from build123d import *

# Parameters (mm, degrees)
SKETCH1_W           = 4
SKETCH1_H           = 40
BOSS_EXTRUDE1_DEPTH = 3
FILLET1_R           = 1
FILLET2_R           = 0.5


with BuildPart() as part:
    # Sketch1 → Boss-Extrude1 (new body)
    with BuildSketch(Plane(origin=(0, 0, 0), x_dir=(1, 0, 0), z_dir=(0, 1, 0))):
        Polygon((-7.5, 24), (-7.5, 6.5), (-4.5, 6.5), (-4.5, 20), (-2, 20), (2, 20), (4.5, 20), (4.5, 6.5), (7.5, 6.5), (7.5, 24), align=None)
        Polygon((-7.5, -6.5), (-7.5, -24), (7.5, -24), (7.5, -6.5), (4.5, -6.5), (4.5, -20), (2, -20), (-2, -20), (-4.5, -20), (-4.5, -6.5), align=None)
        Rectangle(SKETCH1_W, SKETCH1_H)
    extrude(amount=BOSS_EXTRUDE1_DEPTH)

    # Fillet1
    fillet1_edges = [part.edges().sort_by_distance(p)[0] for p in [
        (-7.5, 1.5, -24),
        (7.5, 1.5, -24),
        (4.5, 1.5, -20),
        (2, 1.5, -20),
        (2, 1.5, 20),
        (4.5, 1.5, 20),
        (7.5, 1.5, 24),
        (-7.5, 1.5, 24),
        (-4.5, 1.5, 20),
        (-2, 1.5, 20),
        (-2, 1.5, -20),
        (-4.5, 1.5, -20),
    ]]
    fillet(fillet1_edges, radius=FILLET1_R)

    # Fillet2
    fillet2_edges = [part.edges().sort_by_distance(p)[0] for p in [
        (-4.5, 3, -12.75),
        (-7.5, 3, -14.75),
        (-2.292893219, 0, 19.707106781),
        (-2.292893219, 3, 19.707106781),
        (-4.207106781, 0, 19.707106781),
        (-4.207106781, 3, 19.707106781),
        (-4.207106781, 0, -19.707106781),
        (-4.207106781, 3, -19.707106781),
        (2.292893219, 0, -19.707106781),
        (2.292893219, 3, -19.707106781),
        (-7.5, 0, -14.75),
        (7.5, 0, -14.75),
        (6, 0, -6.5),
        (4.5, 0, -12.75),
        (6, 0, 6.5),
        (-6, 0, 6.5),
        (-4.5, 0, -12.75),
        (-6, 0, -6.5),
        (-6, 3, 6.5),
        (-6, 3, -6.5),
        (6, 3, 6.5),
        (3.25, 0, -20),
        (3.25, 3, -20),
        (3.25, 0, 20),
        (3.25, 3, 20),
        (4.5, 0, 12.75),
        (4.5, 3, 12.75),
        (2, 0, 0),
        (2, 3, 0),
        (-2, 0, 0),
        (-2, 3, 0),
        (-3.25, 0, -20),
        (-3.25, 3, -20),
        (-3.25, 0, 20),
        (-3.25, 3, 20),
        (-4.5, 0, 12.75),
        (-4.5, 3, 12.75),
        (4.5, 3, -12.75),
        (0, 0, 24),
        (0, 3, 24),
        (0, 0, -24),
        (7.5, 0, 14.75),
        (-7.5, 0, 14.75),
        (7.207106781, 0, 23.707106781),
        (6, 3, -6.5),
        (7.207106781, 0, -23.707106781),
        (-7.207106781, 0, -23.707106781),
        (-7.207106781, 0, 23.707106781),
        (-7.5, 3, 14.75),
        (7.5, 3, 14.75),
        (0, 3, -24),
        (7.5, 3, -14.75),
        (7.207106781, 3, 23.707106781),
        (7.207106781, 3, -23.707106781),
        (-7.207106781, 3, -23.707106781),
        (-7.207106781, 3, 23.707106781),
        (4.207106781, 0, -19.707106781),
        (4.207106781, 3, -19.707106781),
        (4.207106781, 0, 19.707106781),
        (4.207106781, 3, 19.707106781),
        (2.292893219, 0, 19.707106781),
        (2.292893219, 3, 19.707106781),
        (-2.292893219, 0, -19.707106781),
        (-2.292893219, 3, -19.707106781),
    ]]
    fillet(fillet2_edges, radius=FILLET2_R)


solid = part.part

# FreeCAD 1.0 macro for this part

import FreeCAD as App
import Part
import Sketcher

V = App.Vector


def edges_at(feature, points):
    """Names of the edges that pass closest to the given points."""
    edges = feature.Shape.Edges
    near = lambda p: min(range(len(edges)), key=lambda i: edges[i].distToShape(Part.Vertex(*p))[0])
    return sorted({f"Edge{near(p) + 1}" for p in points})


def add_polygon(sketch, points):
    """Adds a closed chain of lines whose ends are joined by coincident constraints."""
    first, n = sketch.GeometryCount, len(points)
    for a, b in zip(points, points[1:] + points[:1]):
        sketch.addGeometry(Part.LineSegment(App.Vector(*a, 0), App.Vector(*b, 0)), False)
    for i in range(n):
        sketch.addConstraint(Sketcher.Constraint("Coincident", first + i, 2, first + (i + 1) % n, 1))

doc = App.newDocument("Part")
body = doc.addObject("PartDesign::Body", "Body")

# Sketch on XZ plane
sketch1 = body.newObject("Sketcher::SketchObject", "Sketch")
sketch1.AttachmentSupport = (doc.getObject("XZ_Plane"), [""])
sketch1.MapMode = "FlatFace"
add_polygon(sketch1, [(-7.5, -24), (-7.5, -6.5), (-4.5, -6.5), (-4.5, -20), (-2, -20), (-2, 20), (-4.5, 20), (-4.5, 6.5), (-7.5, 6.5), (-7.5, 24), (7.5, 24), (7.5, 6.5), (4.5, 6.5), (4.5, 20), (2, 20), (2, -20), (4.5, -20), (4.5, -6.5), (7.5, -6.5), (7.5, -24)])  # lines 0-19
sketch1.addConstraint(Sketcher.Constraint("Vertical", 0))
sketch1.addConstraint(Sketcher.Constraint("Horizontal", 1))
sketch1.addConstraint(Sketcher.Constraint("Vertical", 2))
sketch1.addConstraint(Sketcher.Constraint("Horizontal", 3))
sketch1.addConstraint(Sketcher.Constraint("Vertical", 4))
sketch1.addConstraint(Sketcher.Constraint("Horizontal", 5))
sketch1.addConstraint(Sketcher.Constraint("Vertical", 6))
sketch1.addConstraint(Sketcher.Constraint("Horizontal", 7))
sketch1.addConstraint(Sketcher.Constraint("Vertical", 8))
sketch1.addConstraint(Sketcher.Constraint("Horizontal", 9))
sketch1.addConstraint(Sketcher.Constraint("Vertical", 10))
sketch1.addConstraint(Sketcher.Constraint("Horizontal", 11))
sketch1.addConstraint(Sketcher.Constraint("Vertical", 12))
sketch1.addConstraint(Sketcher.Constraint("Horizontal", 13))
sketch1.addConstraint(Sketcher.Constraint("Vertical", 14))
sketch1.addConstraint(Sketcher.Constraint("Horizontal", 15))
sketch1.addConstraint(Sketcher.Constraint("Vertical", 16))
sketch1.addConstraint(Sketcher.Constraint("Horizontal", 17))
sketch1.addConstraint(Sketcher.Constraint("Vertical", 18))
sketch1.addConstraint(Sketcher.Constraint("Horizontal", 19))
sketch1.addConstraint(Sketcher.Constraint("Symmetric", 0, 2, 10, 2, -1, 1))
sketch1.addConstraint(Sketcher.Constraint("Symmetric", 2, 2, 12, 2, -1, 1))
sketch1.addConstraint(Sketcher.Constraint("Symmetric", 4, 2, 14, 2, -1, 1))
sketch1.addConstraint(Sketcher.Constraint("Symmetric", 6, 2, 16, 2, -1, 1))
sketch1.addConstraint(Sketcher.Constraint("Symmetric", 8, 2, 18, 2, -1, 1))
sketch1.addConstraint(Sketcher.Constraint("Symmetric", 7, 2, 10, 2, -2))
sketch1.addConstraint(Sketcher.Constraint("Symmetric", 5, 2, 12, 2, -2))
sketch1.addConstraint(Sketcher.Constraint("DistanceX", 1, 1, 1, 2, 3.0))
sketch1.addConstraint(Sketcher.Constraint("DistanceX", 9, 1, 9, 2, 15.0))
sketch1.addConstraint(Sketcher.Constraint("DistanceY", 4, 1, 4, 2, 40.0))
sketch1.addConstraint(Sketcher.Constraint("DistanceX", 3, 1, 3, 2, 2.5))
sketch1.addConstraint(Sketcher.Constraint("DistanceY", 0, 1, 0, 2, 17.5))
sketch1.addConstraint(Sketcher.Constraint("DistanceY", 2, 2, 2, 1, 13.5))
pad1 = body.newObject("PartDesign::Pad", "Pad")
pad1.Profile = sketch1
pad1.Length = 3
pad1.Reversed = True
doc.recompute()

fillet = body.newObject("PartDesign::Fillet", "Fillet")
fillet.Base = (pad1, edges_at(pad1, [
    (-7.5, 1.5, -24),
    (7.5, 1.5, -24),
    (4.5, 1.5, -20),
    (2, 1.5, -20),
    (2, 1.5, 20),
    (4.5, 1.5, 20),
    (7.5, 1.5, 24),
    (-7.5, 1.5, 24),
    (-4.5, 1.5, 20),
    (-2, 1.5, 20),
    (-2, 1.5, -20),
    (-4.5, 1.5, -20),
]))
fillet.Radius = 1
doc.recompute()

fillet2 = body.newObject("PartDesign::Fillet", "Fillet001")
fillet2.Base = (fillet, edges_at(fillet, [
    (-4.5, 3, -12.75),
    (-7.5, 3, -14.75),
    (-2.293, 0, 19.707),
    (-2.293, 3, 19.707),
    (-4.207, 0, 19.707),
    (-4.207, 3, 19.707),
    (-4.207, 0, -19.707),
    (-4.207, 3, -19.707),
    (2.293, 0, -19.707),
    (2.293, 3, -19.707),
    (-7.5, 0, -14.75),
    (7.5, 0, -14.75),
    (6, 0, -6.5),
    (4.5, 0, -12.75),
    (6, 0, 6.5),
    (-6, 0, 6.5),
    (-4.5, 0, -12.75),
    (-6, 0, -6.5),
    (-6, 3, 6.5),
    (-6, 3, -6.5),
    (6, 3, 6.5),
    (3.25, 0, -20),
    (3.25, 3, -20),
    (3.25, 0, 20),
    (3.25, 3, 20),
    (4.5, 0, 12.75),
    (4.5, 3, 12.75),
    (2, 0, 0),
    (2, 3, 0),
    (-2, 0, 0),
    (-2, 3, 0),
    (-3.25, 0, -20),
    (-3.25, 3, -20),
    (-3.25, 0, 20),
    (-3.25, 3, 20),
    (-4.5, 0, 12.75),
    (-4.5, 3, 12.75),
    (4.5, 3, -12.75),
    (0, 0, 24),
    (0, 3, 24),
    (0, 0, -24),
    (7.5, 0, 14.75),
    (-7.5, 0, 14.75),
    (7.207, 0, 23.707),
    (6, 3, -6.5),
    (7.207, 0, -23.707),
    (-7.207, 0, -23.707),
    (-7.207, 0, 23.707),
    (-7.5, 3, 14.75),
    (7.5, 3, 14.75),
    (0, 3, -24),
    (7.5, 3, -14.75),
    (7.207, 3, 23.707),
    (7.207, 3, -23.707),
    (-7.207, 3, -23.707),
    (-7.207, 3, 23.707),
    (4.207, 0, -19.707),
    (4.207, 3, -19.707),
    (4.207, 0, 19.707),
    (4.207, 3, 19.707),
    (2.293, 0, 19.707),
    (2.293, 3, 19.707),
    (-2.293, 0, -19.707),
    (-2.293, 3, -19.707),
]))
fillet2.Radius = 0.5

doc.recompute()
